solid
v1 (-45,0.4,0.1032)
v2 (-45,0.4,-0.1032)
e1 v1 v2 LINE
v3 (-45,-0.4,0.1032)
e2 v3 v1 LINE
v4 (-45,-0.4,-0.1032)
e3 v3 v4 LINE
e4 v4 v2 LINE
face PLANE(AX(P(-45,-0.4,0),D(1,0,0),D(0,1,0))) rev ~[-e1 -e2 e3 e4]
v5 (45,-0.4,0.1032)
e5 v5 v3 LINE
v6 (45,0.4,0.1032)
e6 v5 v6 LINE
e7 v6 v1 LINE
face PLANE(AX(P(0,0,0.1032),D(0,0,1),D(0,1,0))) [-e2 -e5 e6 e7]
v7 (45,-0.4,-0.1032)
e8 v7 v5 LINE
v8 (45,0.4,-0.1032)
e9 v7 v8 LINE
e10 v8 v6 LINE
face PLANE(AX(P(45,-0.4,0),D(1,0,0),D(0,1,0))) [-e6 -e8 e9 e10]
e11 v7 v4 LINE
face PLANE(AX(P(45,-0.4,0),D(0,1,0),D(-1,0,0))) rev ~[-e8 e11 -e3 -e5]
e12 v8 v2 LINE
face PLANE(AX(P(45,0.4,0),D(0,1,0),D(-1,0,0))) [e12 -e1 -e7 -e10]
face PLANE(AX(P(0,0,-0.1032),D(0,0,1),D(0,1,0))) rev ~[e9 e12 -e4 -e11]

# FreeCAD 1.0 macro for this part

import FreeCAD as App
import Part
import Sketcher
Q = App.Units.Quantity

doc = App.newDocument("Part")
body = doc.addObject("PartDesign::Body", "Body")

# Sketch on XY plane
sketch1 = body.newObject("Sketcher::SketchObject", "Sketch")
sketch1.AttachmentSupport = (doc.getObject("XY_Plane"), [""])
sketch1.MapMode = "FlatFace"
sketch1.addGeometry([
    Part.LineSegment(App.Vector(-0.4, 45, 0), App.Vector(-0.4, -45, 0)),
    Part.LineSegment(App.Vector(-0.4, -45, 0), App.Vector(0.4, -45, 0)),
    Part.LineSegment(App.Vector(0.4, -45, 0), App.Vector(0.4, 45, 0)),
    Part.LineSegment(App.Vector(0.4, 45, 0), App.Vector(-0.4, 45, 0)),
], False)
sketch1.addConstraint([
    Sketcher.Constraint("Coincident", 0, 2, 1, 1),
    Sketcher.Constraint("Coincident", 1, 2, 2, 1),
    Sketcher.Constraint("Coincident", 2, 2, 3, 1),
    Sketcher.Constraint("Coincident", 3, 2, 0, 1),
    Sketcher.Constraint("Vertical", 0),
    Sketcher.Constraint("Horizontal", 1),
    Sketcher.Constraint("Vertical", 2),
    Sketcher.Constraint("Horizontal", 3),
    Sketcher.Constraint("Symmetric", 0, 2, 2, 2, -1, 1),
    Sketcher.Constraint("DistanceY", 0, 2, 0, 1, Q("90 mm")),
    Sketcher.Constraint("DistanceX", 1, 1, 1, 2, Q("0.8 mm")),
])
pad1 = body.newObject("PartDesign::Pad", "Pad")
pad1.Profile = sketch1
pad1.Length = 0.2064
pad1.Midplane = True
body2 = doc.addObject("PartDesign::Body", "Body001")
doc.recompute()

body.Placement = App.Placement(App.Vector(0, 0, 0), App.Rotation(App.Vector(0, 0, 1), 90))
boolean = body2.newObject("PartDesign::Boolean", "Boolean")
boolean.Type = "Fuse"
boolean.addObjects([body])

doc.recompute()
